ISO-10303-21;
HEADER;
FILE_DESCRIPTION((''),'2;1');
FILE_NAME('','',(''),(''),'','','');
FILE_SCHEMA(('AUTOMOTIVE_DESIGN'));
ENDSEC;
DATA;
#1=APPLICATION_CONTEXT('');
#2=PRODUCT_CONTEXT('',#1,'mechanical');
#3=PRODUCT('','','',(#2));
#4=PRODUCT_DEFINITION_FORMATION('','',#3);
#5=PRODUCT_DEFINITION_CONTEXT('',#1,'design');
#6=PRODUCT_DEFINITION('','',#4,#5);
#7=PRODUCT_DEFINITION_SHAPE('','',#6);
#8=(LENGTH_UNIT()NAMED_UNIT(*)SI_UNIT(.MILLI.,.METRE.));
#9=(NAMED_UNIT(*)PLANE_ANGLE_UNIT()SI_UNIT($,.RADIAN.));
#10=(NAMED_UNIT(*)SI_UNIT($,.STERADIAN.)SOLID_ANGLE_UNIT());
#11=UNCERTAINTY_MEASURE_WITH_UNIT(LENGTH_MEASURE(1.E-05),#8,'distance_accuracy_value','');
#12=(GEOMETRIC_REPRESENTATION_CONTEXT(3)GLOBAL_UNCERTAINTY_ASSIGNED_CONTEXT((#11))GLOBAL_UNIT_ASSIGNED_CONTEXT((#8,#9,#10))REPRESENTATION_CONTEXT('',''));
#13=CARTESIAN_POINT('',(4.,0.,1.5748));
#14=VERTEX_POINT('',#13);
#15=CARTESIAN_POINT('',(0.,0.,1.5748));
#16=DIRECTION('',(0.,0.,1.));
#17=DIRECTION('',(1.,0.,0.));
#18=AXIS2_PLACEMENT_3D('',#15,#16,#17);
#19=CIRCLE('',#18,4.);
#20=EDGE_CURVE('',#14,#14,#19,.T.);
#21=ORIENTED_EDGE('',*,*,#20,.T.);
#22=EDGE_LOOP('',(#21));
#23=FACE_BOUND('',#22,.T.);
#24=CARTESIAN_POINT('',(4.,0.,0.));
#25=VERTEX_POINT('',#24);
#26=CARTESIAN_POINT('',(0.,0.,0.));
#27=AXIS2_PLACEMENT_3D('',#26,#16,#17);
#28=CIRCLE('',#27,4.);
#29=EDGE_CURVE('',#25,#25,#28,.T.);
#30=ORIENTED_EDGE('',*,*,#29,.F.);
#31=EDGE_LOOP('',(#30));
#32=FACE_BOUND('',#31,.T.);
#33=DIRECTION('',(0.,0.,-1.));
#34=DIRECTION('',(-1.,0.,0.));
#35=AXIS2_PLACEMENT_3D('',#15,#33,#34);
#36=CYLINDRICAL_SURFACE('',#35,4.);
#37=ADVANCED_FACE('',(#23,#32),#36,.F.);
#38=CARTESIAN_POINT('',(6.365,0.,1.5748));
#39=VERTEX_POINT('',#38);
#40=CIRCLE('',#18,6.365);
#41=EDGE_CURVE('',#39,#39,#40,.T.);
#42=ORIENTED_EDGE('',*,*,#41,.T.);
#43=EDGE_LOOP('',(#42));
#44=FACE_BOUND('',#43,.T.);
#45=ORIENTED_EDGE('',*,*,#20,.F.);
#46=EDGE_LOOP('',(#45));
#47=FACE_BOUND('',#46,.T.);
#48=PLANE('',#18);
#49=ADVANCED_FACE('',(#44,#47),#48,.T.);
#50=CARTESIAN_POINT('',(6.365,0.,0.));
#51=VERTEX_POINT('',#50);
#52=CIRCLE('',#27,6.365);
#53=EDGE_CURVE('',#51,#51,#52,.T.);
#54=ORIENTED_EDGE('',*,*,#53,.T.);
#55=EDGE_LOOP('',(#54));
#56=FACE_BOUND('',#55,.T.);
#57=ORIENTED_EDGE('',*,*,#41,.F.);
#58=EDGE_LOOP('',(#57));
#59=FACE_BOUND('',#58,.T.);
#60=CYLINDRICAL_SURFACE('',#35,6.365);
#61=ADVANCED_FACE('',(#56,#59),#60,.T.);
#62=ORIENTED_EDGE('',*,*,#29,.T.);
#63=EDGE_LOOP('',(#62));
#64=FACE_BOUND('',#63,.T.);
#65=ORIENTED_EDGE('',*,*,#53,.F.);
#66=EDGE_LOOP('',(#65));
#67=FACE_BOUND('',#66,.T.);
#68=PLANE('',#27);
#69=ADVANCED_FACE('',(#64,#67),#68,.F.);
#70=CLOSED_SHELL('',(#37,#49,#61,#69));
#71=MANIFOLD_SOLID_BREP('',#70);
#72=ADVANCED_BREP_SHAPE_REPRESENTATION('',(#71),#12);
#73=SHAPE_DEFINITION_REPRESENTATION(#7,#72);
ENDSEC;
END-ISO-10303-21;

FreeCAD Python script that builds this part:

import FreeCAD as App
import Part
import Sketcher
Q = App.Units.Quantity

doc = App.newDocument("Part")
params = doc.addObject("Spreadsheet::Sheet", "Params")
for row, (alias, value) in enumerate([
    ("sketch1_diameter", "8 mm"),
    ("sketch1_diameter2", "12.73 mm"),
    ("pad1_length", "1.5748 mm"),
], start=1):
    params.set(f"A{row}", alias)
    params.set(f"B{row}", "=" + value)
    params.setAlias(f"B{row}", alias)

body = doc.addObject("PartDesign::Body", "Body")

# Sketch on XY plane
sketch1 = body.newObject("Sketcher::SketchObject", "Sketch")
sketch1.AttachmentSupport = (doc.getObject("XY_Plane"), [""])
sketch1.MapMode = "FlatFace"
sketch1.addGeometry([
    Part.Circle(App.Vector(0, 0, 0), App.Vector(0, 0, 1), 6.4),
    Part.Circle(App.Vector(0, 0, 0), App.Vector(0, 0, 1), 4),
], False)
sketch1.addConstraint([
    Sketcher.Constraint("Coincident", 0, 3, -1, 1),
    Sketcher.Constraint("Coincident", 1, 3, -1, 1),
    Sketcher.Constraint("Diameter", 1, Q("8 mm")),
    Sketcher.Constraint("Diameter", 0, Q("12.73 mm")),
])
sketch1.setExpression("Constraints[2]", "Params.sketch1_diameter")
sketch1.setExpression("Constraints[3]", "Params.sketch1_diameter2")
pad1 = body.newObject("PartDesign::Pad", "Pad")
pad1.Profile = sketch1
pad1.setExpression("Length", "Params.pad1_length")

doc.recompute()
